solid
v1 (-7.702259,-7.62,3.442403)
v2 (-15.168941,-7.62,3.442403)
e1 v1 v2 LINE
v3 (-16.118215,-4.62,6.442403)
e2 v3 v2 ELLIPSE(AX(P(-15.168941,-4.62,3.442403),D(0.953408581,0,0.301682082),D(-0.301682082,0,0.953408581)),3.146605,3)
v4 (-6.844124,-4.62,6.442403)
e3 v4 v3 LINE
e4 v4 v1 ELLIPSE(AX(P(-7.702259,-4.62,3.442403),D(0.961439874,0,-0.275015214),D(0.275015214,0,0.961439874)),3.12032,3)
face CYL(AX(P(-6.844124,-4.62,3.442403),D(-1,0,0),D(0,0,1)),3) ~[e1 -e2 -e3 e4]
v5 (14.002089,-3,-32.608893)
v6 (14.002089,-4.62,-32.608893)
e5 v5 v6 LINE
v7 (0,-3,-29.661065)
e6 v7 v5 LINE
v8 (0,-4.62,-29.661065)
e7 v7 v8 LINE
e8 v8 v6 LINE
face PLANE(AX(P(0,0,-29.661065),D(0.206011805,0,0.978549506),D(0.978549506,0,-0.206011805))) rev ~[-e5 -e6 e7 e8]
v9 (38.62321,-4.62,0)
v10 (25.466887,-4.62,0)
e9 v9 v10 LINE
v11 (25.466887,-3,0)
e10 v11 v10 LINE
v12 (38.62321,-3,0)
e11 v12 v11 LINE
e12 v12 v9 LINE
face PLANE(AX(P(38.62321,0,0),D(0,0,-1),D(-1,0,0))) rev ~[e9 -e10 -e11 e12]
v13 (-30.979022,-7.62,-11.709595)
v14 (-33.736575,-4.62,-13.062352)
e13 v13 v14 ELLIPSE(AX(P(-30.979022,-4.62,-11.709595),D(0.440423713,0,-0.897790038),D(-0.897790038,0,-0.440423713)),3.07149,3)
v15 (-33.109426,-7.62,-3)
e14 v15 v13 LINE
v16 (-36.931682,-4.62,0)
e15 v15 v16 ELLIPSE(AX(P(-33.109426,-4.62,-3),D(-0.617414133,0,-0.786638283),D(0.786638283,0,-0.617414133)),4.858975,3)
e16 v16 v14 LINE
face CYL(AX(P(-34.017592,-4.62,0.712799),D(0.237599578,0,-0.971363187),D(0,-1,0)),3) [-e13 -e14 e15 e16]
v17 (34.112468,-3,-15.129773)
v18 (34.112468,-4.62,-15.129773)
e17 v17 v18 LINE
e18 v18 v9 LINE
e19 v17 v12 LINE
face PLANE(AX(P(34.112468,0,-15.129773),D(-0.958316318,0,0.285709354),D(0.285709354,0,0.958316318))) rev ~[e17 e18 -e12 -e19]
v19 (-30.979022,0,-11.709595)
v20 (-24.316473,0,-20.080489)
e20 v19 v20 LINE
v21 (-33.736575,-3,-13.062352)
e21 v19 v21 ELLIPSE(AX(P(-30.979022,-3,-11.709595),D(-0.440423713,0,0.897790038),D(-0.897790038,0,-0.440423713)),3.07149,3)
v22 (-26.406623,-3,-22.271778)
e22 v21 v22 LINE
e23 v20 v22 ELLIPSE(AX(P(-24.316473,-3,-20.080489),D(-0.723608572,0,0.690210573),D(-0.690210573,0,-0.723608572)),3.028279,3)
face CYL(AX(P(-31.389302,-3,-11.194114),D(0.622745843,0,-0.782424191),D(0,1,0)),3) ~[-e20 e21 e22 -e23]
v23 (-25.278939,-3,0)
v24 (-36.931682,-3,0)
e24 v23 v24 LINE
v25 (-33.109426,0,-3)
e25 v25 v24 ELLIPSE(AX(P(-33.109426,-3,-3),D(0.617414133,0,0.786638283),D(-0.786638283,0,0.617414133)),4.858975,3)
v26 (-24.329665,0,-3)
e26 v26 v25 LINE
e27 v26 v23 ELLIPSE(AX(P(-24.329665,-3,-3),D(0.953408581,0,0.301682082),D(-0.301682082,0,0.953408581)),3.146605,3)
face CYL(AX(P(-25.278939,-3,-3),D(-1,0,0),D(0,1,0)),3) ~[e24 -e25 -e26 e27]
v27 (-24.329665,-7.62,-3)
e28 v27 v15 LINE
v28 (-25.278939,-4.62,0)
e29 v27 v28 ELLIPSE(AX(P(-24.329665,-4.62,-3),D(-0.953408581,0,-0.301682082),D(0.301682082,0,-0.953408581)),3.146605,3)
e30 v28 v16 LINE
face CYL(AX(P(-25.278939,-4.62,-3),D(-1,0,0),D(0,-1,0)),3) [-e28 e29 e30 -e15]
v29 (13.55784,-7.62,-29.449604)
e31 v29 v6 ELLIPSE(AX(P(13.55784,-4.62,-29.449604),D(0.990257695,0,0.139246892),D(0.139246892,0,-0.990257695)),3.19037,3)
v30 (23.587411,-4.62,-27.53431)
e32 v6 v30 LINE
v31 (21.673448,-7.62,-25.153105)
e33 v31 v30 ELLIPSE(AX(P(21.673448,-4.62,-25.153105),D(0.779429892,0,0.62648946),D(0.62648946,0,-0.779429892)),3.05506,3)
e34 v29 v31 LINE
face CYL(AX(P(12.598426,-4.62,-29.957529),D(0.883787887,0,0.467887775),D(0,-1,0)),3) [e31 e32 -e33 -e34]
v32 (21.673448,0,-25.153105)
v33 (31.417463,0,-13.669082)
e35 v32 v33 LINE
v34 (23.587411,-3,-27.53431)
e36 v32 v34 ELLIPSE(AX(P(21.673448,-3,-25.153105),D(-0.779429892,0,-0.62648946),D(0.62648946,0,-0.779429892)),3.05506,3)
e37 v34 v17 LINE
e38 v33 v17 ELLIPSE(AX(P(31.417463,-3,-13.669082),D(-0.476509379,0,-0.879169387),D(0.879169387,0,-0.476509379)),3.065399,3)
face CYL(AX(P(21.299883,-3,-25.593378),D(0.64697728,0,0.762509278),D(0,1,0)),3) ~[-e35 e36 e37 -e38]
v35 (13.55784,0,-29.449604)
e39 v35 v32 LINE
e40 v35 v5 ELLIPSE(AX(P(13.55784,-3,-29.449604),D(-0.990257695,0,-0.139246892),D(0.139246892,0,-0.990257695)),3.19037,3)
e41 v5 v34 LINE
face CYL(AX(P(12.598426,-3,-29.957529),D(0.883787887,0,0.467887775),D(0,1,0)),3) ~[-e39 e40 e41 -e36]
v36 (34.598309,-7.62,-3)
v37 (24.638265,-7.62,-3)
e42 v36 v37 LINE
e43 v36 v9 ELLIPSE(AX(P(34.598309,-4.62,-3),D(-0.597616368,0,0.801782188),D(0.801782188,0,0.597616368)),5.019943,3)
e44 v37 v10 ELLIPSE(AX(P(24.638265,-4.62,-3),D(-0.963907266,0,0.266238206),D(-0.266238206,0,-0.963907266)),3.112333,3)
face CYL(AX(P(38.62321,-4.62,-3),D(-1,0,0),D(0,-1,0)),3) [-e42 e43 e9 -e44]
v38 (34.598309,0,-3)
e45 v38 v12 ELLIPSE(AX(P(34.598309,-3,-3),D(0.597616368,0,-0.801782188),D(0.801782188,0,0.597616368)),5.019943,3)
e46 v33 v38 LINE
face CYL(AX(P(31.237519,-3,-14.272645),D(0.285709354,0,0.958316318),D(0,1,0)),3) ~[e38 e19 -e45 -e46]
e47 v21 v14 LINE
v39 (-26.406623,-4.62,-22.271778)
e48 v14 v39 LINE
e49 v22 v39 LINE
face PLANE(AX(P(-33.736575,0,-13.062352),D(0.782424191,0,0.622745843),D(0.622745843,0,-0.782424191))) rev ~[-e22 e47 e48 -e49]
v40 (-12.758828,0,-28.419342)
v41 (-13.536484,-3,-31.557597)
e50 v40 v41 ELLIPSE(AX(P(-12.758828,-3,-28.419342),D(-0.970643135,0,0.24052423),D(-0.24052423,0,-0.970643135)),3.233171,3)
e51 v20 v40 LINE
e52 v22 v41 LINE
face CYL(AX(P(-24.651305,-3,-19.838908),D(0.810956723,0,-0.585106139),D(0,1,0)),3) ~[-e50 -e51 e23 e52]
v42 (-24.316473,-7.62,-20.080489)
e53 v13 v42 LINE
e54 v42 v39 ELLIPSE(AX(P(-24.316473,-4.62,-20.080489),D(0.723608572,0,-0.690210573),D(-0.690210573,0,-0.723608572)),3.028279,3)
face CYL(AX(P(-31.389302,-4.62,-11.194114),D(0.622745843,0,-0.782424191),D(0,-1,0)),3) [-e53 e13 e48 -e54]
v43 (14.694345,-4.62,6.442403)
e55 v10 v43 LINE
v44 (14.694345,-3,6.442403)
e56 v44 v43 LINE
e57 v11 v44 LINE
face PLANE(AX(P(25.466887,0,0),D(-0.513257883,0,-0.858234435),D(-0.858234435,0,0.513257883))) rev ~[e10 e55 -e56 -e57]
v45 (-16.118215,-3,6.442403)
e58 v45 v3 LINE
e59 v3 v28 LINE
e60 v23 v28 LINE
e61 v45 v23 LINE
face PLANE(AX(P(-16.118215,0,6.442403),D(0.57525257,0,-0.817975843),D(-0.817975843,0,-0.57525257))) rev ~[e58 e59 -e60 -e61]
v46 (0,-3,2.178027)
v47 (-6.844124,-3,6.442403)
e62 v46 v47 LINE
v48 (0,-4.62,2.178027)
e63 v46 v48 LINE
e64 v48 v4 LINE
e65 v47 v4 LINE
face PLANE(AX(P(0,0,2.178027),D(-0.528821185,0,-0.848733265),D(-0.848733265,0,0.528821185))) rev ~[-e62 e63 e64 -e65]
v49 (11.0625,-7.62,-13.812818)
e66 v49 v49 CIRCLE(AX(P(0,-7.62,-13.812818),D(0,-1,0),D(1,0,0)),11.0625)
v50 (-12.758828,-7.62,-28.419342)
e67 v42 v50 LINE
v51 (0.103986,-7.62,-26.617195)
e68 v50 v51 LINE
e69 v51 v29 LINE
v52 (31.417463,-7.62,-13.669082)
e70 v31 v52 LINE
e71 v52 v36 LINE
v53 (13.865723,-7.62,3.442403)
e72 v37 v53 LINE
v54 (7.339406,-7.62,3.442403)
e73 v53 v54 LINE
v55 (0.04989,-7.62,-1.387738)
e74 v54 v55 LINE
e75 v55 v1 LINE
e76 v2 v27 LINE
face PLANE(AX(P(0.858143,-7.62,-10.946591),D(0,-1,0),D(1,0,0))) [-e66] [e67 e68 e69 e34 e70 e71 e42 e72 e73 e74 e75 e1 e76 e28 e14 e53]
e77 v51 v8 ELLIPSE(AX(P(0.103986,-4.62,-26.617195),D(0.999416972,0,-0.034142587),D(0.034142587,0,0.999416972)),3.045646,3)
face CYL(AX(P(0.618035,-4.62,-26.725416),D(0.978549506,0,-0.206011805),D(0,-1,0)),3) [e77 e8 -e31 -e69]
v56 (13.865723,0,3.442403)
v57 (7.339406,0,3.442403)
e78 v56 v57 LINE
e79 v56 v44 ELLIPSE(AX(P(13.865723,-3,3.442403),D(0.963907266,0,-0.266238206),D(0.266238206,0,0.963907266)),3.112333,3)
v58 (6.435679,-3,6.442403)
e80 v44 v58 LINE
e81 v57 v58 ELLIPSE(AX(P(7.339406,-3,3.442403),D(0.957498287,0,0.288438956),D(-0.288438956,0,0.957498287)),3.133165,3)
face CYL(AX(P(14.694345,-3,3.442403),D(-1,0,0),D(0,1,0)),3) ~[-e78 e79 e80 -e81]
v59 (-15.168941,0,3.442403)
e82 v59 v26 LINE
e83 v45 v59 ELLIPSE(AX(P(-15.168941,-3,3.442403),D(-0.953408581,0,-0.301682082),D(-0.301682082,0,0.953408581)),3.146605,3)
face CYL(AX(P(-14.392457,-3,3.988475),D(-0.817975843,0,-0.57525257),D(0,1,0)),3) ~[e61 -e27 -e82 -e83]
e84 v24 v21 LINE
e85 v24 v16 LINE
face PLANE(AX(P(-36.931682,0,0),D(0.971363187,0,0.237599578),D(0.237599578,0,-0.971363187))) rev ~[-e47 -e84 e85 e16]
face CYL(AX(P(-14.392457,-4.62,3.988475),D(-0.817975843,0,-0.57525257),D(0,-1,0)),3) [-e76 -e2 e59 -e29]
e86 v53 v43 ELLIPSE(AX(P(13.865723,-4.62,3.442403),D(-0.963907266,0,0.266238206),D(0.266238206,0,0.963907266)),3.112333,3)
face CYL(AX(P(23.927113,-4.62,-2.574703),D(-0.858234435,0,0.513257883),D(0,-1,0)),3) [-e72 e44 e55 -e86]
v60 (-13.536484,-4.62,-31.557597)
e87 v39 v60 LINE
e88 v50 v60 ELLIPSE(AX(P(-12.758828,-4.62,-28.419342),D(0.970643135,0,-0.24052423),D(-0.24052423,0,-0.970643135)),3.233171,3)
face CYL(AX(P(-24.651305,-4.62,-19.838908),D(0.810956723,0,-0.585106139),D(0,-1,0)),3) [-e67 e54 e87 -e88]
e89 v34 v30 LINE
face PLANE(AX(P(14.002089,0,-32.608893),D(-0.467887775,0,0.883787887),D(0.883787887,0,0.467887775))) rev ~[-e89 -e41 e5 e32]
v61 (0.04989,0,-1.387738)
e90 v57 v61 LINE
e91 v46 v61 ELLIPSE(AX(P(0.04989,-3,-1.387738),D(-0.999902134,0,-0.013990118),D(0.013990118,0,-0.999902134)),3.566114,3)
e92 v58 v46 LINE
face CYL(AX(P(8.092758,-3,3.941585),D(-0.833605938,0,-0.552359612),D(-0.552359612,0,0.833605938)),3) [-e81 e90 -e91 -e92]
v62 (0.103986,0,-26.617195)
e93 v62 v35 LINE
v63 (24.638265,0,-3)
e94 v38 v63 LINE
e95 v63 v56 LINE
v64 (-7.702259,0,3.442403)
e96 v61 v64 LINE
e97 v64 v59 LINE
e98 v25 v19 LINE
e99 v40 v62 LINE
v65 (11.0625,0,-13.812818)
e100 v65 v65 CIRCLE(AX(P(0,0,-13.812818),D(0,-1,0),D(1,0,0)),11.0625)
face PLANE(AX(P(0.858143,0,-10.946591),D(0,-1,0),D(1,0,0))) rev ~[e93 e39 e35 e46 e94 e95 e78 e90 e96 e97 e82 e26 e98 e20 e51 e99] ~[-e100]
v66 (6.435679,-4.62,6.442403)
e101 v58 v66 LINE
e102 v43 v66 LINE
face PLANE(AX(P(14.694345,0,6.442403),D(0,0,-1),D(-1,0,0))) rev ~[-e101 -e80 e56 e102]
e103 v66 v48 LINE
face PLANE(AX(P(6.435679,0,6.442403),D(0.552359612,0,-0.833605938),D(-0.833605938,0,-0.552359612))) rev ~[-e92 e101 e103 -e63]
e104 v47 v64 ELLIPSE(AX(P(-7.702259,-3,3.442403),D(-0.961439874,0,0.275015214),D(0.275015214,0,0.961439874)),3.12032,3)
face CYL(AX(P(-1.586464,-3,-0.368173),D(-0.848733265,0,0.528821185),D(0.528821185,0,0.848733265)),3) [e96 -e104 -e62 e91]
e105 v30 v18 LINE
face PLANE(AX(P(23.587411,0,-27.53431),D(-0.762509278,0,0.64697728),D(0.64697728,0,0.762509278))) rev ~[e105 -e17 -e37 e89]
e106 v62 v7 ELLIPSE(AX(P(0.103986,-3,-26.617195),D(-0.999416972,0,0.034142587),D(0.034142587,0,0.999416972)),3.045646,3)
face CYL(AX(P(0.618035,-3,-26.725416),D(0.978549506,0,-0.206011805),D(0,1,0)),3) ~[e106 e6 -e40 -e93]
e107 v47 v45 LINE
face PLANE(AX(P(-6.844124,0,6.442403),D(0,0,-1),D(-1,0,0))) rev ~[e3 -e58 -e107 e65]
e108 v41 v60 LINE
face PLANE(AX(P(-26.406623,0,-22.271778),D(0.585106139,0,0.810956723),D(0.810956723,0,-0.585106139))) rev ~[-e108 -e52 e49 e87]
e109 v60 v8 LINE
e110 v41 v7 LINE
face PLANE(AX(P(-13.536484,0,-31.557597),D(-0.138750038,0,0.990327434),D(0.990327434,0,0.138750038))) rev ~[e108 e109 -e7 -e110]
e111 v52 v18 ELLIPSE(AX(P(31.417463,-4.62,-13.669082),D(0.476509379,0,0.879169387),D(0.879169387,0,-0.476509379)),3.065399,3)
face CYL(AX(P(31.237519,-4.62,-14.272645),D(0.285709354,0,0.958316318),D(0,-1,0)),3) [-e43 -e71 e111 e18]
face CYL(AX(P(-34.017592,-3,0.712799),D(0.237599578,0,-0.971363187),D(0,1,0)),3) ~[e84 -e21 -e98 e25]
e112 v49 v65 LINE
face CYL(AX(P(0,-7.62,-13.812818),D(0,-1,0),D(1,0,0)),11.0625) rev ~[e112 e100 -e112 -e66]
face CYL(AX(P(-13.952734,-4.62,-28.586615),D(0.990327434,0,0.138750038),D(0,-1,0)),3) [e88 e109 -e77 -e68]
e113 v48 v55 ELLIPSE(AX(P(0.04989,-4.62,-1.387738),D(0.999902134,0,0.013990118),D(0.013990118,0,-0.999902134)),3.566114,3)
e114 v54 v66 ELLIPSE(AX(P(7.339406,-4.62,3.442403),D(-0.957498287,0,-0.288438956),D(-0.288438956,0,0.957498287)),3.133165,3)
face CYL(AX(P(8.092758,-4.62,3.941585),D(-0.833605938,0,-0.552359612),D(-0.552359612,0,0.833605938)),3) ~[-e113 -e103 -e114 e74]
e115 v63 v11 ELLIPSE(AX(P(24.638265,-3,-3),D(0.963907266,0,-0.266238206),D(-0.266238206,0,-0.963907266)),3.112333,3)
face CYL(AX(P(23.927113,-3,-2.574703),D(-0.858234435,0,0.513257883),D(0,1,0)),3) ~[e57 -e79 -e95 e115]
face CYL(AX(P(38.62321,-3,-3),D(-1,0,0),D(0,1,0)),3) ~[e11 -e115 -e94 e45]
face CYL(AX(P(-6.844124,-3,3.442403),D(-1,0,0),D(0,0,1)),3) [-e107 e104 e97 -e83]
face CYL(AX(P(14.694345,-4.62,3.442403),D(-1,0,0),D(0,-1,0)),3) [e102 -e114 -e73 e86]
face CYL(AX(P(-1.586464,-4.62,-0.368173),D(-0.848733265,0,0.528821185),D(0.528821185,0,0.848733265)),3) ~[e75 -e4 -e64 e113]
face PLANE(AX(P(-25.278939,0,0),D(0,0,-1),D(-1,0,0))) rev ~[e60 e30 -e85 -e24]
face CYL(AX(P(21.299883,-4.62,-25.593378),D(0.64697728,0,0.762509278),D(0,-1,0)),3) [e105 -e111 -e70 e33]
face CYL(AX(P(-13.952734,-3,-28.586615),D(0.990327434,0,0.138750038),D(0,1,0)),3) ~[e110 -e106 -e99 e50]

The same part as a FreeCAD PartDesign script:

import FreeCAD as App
import Part
import Sketcher
from FreeCAD import Vector


def edges_at(feature, points):
    """Names of the edges that pass closest to the given points."""
    edges = feature.Shape.Edges
    near = lambda p: min(range(len(edges)), key=lambda i: edges[i].distToShape(Part.Vertex(*p))[0])
    return sorted({f"Edge{near(p) + 1}" for p in points})

doc = App.newDocument("Part")
body = doc.addObject("PartDesign::Body", "Body")

# Sketch on XZ plane
sketch1 = body.newObject("Sketcher::SketchObject", "Sketch")
sketch1.AttachmentSupport = (doc.getObject("XZ_Plane"), [""])
sketch1.MapMode = "FlatFace"
sketch1.addGeometry([
    Part.LineSegment(Vector(0, 2.178027, 0), Vector(-6.844124, 6.442403, 0)),  # 0
    Part.LineSegment(Vector(-6.844124, 6.442403, 0), Vector(-16.118215, 6.442403, 0)),  # 1
    Part.LineSegment(Vector(-16.118215, 6.442403, 0), Vector(-25.278939, 0, 0)),  # 2
    Part.LineSegment(Vector(-25.278939, 0, 0), Vector(-36.931682, 0, 0)),  # 3
    Part.LineSegment(Vector(-36.931682, 0, 0), Vector(-33.736575, -13.062352, 0)),  # 4
    Part.LineSegment(Vector(-33.736575, -13.062352, 0), Vector(-26.406623, -22.271778, 0)),  # 5
    Part.LineSegment(Vector(-26.406623, -22.271778, 0), Vector(-13.536484, -31.557597, 0)),  # 6
    Part.LineSegment(Vector(-13.536484, -31.557597, 0), Vector(0, -29.661065, 0)),  # 7
    Part.LineSegment(Vector(0, -29.661065, 0), Vector(14.002089, -32.608893, 0)),  # 8
    Part.LineSegment(Vector(14.002089, -32.608893, 0), Vector(23.587411, -27.53431, 0)),  # 9
    Part.LineSegment(Vector(23.587411, -27.53431, 0), Vector(34.112468, -15.129773, 0)),  # 10
    Part.LineSegment(Vector(34.112468, -15.129773, 0), Vector(38.62321, 0, 0)),  # 11
    Part.LineSegment(Vector(38.62321, 0, 0), Vector(25.466887, 0, 0)),  # 12
    Part.LineSegment(Vector(25.466887, 0, 0), Vector(14.694345, 6.442403, 0)),  # 13
    Part.LineSegment(Vector(14.694345, 6.442403, 0), Vector(6.435679, 6.442403, 0)),  # 14
    Part.LineSegment(Vector(6.435679, 6.442403, 0), Vector(0, 2.178027, 0)),  # 15
], False)
sketch1.addConstraint([
    Sketcher.Constraint("Coincident", 0, 2, 1, 1),
    Sketcher.Constraint("Coincident", 1, 2, 2, 1),
    Sketcher.Constraint("Coincident", 2, 2, 3, 1),
    Sketcher.Constraint("Coincident", 3, 2, 4, 1),
    Sketcher.Constraint("Coincident", 4, 2, 5, 1),
    Sketcher.Constraint("Coincident", 5, 2, 6, 1),
    Sketcher.Constraint("Coincident", 6, 2, 7, 1),
    Sketcher.Constraint("Coincident", 7, 2, 8, 1),
    Sketcher.Constraint("Coincident", 8, 2, 9, 1),
    Sketcher.Constraint("Coincident", 9, 2, 10, 1),
    Sketcher.Constraint("Coincident", 10, 2, 11, 1),
    Sketcher.Constraint("Coincident", 11, 2, 12, 1),
    Sketcher.Constraint("Coincident", 12, 2, 13, 1),
    Sketcher.Constraint("Coincident", 13, 2, 14, 1),
    Sketcher.Constraint("Coincident", 14, 2, 15, 1),
    Sketcher.Constraint("Coincident", 15, 2, 0, 1),
    Sketcher.Constraint("Horizontal", 1),
    Sketcher.Constraint("Horizontal", 3),
    Sketcher.Constraint("Horizontal", 12),
    Sketcher.Constraint("Horizontal", 14),
    Sketcher.Constraint("PointOnObject", 2, 2, -1),
    Sketcher.Constraint("PointOnObject", 7, 2, -2),
    Sketcher.Constraint("PointOnObject", 11, 2, -1),
    Sketcher.Constraint("PointOnObject", 15, 2, -2),
    Sketcher.Constraint("Horizontal", 1, 2, 13, 2),
    Sketcher.Constraint("DistanceY", 6, 2, 1, 2, 38.0),
    Sketcher.Constraint("DistanceX", 1, 2, 1, 1, 9.274091),
    Sketcher.Constraint("DistanceX", 5, 2, 0, 2, 19.562499),
    Sketcher.Constraint("DistanceX", 9, 2, 11, 2, 15.035799),
    Sketcher.Constraint("Distance", 0, 8.063928),
    Sketcher.Constraint("Distance", 2, 11.19926),
    Sketcher.Constraint("Distance", 11, 15.78787),
    Sketcher.Constraint("Distance", 13, 12.551981),
    Sketcher.Constraint("Distance", 15, 7.720289),
    Sketcher.Constraint("DistanceX", 3, 2, 3, 1, 11.652743),
    Sketcher.Constraint("DistanceX", 12, 2, 12, 1, 13.156323),
    Sketcher.Constraint("DistanceX", 14, 2, 14, 1, 8.258666),
    Sketcher.Constraint("DistanceX", 2, 2, -1, 1, 25.278939),
    Sketcher.Constraint("DistanceY", 5, 2, -1, 1, 22.271778),
    Sketcher.Constraint("DistanceX", -1, 1, 8, 2, 14.002089),
    Sketcher.Constraint("DistanceX", -1, 1, 9, 2, 23.587411),
    Sketcher.Constraint("DistanceY", 9, 2, -1, 1, 27.53431),
    Sketcher.Constraint("DistanceX", 4, 2, 1, 2, 17.61836),
    Sketcher.Constraint("DistanceX", 5, 2, 6, 2, 12.870139),
    Sketcher.Constraint("DistanceY", 8, 2, 7, 2, 2.947828),
    Sketcher.Constraint("DistanceX", 8, 2, 10, 2, 20.110379),
    Sketcher.Constraint("DistanceY", 8, 2, 10, 2, 17.47912),
    Sketcher.Constraint("Distance", 4, 13.447444),
])
pad1 = body.newObject("PartDesign::Pad", "Pad")
pad1.Profile = sketch1
pad1.Length = 7.62

# Sketch on XZ plane
sketch2 = body.newObject("Sketcher::SketchObject", "Sketch001")
sketch2.AttachmentSupport = (doc.getObject("XZ_Plane"), [""])
sketch2.MapMode = "FlatFace"
sketch2.AttachmentOffset = App.Placement(Vector(0, 0, 7.62), App.Rotation())
sketch2.addGeometry(Part.Circle(Vector(0, -13.812818, 0), Vector(0, 0, 1), 11.0625), False)
sketch2.addConstraint([
    Sketcher.Constraint("PointOnObject", 0, 3, -2),
    Sketcher.Constraint("Diameter", 0, 22.125),
    Sketcher.Constraint("DistanceY", 0, 3, -1, 1, 13.812818),
])
pocket1 = body.newObject("PartDesign::Pocket", "Pocket")
pocket1.Profile = sketch2
pocket1.Length = 10
doc.recompute()

fillet = body.newObject("PartDesign::Fillet", "Fillet")
fillet.Base = (pocket1, edges_at(pocket1, [
    (-35.334, -7.62, -6.531),
    (-30.072, -7.62, -17.667),
    (-19.972, -7.62, -26.915),
    (-6.768, -7.62, -30.609),
    (7.001, -7.62, -31.135),
    (18.795, -7.62, -30.072),
    (28.85, -7.62, -21.332),
    (36.368, -7.62, -7.565),
    (32.045, -7.62, 0),
    (20.081, -7.62, 3.221),
    (10.565, -7.62, 6.442),
    (3.218, -7.62, 4.31),
    (-3.422, -7.62, 4.31),
    (-11.481, -7.62, 6.442),
    (-20.699, -7.62, 3.221),
    (-31.105, -7.62, 0),
    (-31.105, 0, 0),
    (-35.334, 0, -6.531),
    (-30.072, 0, -17.667),
    (-19.972, 0, -26.915),
    (-6.768, 0, -30.609),
    (7.001, 0, -31.135),
    (18.795, 0, -30.072),
    (28.85, 0, -21.332),
    (36.368, 0, -7.565),
    (32.045, 0, 0),
    (20.081, 0, 3.221),
    (10.565, 0, 6.442),
    (3.218, 0, 4.31),
    (-3.422, 0, 4.31),
    (-11.481, 0, 6.442),
    (-20.699, 0, 3.221),
]))
fillet.Radius = 3

doc.recompute()
